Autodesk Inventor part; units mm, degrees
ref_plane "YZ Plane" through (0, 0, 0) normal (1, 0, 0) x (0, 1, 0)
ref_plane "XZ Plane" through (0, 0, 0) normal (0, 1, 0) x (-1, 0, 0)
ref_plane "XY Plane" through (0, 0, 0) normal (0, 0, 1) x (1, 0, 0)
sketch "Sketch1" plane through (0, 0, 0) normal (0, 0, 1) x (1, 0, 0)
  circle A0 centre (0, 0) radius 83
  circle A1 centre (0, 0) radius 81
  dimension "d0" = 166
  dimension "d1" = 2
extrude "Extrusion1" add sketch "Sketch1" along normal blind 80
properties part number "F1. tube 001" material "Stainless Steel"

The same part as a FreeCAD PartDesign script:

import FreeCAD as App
import Part
import Sketcher
from FreeCAD import Vector
Q = App.Units.Quantity

doc = App.newDocument("Part")
params = doc.addObject("Spreadsheet::Sheet", "Params")
for row, (alias, value) in enumerate([
    ("sketch1_diameter", "166 mm"),
    ("sketch1_diameter2", "162 mm"),
    ("pad1_length", "80 mm"),
], start=1):
    params.set(f"A{row}", alias)
    params.set(f"B{row}", "=" + value)
    params.setAlias(f"B{row}", alias)

body = doc.addObject("PartDesign::Body", "Body")

sketch1 = body.newObject("Sketcher::SketchObject", "Sketch")
sketch1.AttachmentSupport = (doc.getObject("XY_Plane"), [""])
sketch1.MapMode = "FlatFace"
sketch1.addGeometry(Part.Circle(Vector(0, 0, 0), Vector(0, 0, 1), 83), False)
sketch1.addGeometry(Part.Circle(Vector(0, 0, 0), Vector(0, 0, 1), 81), False)
sketch1.addConstraint(Sketcher.Constraint("Coincident", 0, 3, -1, 1))
sketch1.addConstraint(Sketcher.Constraint("Coincident", 1, 3, -1, 1))
sketch1.addConstraint(Sketcher.Constraint("Diameter", 0, Q("166 mm")))
sketch1.addConstraint(Sketcher.Constraint("Diameter", 1, Q("162 mm")))
sketch1.setExpression("Constraints[2]", "Params.sketch1_diameter")
sketch1.setExpression("Constraints[3]", "Params.sketch1_diameter2")
pad1 = body.newObject("PartDesign::Pad", "Pad")
pad1.Profile = sketch1
pad1.setExpression("Length", "Params.pad1_length")

doc.recompute()
